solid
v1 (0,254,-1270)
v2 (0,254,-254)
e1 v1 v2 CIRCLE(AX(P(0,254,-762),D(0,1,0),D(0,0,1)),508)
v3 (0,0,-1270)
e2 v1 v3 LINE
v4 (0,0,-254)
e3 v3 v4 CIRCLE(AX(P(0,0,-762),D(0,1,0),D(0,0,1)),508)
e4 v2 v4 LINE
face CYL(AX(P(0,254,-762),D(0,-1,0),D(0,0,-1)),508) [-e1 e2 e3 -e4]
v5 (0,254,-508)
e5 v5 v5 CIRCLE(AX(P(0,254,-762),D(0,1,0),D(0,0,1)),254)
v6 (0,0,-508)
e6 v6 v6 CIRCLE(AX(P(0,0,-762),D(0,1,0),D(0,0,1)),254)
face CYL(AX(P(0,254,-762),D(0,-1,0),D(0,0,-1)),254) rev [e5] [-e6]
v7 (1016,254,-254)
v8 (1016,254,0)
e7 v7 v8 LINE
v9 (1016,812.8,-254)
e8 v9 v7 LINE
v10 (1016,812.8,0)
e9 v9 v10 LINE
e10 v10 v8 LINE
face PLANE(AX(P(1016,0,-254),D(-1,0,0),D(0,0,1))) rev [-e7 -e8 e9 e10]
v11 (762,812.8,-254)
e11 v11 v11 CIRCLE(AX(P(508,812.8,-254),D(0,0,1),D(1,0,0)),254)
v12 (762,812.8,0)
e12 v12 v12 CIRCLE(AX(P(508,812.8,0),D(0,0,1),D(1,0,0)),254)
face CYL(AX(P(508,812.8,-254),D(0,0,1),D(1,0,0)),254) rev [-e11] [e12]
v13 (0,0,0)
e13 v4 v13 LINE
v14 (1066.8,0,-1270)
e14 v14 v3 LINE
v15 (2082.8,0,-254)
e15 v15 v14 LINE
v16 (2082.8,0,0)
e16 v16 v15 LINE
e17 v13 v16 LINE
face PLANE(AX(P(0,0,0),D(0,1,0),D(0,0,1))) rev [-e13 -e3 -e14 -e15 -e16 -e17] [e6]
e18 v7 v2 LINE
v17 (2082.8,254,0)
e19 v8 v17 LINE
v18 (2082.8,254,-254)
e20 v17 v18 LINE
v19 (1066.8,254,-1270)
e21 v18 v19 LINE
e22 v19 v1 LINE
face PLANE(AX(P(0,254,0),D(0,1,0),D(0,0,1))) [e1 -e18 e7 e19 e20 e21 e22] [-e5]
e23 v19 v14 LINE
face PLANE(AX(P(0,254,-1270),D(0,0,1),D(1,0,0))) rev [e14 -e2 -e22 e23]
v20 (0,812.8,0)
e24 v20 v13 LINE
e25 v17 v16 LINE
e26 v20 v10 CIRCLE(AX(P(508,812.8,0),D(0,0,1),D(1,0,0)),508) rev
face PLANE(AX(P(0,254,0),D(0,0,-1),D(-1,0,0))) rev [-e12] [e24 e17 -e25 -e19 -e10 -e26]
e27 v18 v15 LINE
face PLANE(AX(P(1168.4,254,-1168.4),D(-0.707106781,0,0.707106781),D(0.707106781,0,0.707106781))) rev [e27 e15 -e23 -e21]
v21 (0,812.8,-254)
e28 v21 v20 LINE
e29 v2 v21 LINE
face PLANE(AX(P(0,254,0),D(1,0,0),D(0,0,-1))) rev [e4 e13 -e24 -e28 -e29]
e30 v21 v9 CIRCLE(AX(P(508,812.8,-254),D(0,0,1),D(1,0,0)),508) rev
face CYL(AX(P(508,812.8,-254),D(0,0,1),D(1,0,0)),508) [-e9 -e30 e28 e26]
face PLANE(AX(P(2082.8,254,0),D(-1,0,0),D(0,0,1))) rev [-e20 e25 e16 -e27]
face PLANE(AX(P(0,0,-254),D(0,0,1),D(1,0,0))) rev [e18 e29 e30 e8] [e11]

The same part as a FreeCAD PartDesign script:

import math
import FreeCAD as App
import Part
import Sketcher

V = App.Vector
Q = App.Units.Quantity

doc = App.newDocument("Part")
body = doc.addObject("PartDesign::Body", "Body")

# Sketch on XZ plane
sketch1 = doc.addObject("Sketcher::SketchObject", "Sketch")
body.addObject(sketch1)
sketch1.AttachmentSupport = (doc.XZ_Plane, [""])
sketch1.MapMode = "FlatFace"
sketch1.addGeometry(Part.LineSegment(V(1067, -1270, 0), V(0, -1270, 0)), False)
sketch1.addGeometry(Part.ArcOfCircle(Part.Circle(V(0, -762, 0), V(0, 0, 1), 508), math.radians(90), math.radians(270)), False)
sketch1.addGeometry(Part.LineSegment(V(0, -254, 0), V(0, 0, 0)), False)
sketch1.addGeometry(Part.LineSegment(V(0, 0, 0), V(2083, 0, 0)), False)
sketch1.addGeometry(Part.LineSegment(V(2083, 0, 0), V(2083, -254, 0)), False)
sketch1.addGeometry(Part.LineSegment(V(2083, -254, 0), V(1067, -1270, 0)), False)
sketch1.addGeometry(Part.Circle(V(0, -762, 0), V(0, 0, 1), 254), False)
sketch1.addConstraint(Sketcher.Constraint("Tangent", 0, 2, 1, 2))
sketch1.addConstraint(Sketcher.Constraint("Coincident", 1, 1, 2, 1))
sketch1.addConstraint(Sketcher.Constraint("Coincident", 2, 2, 3, 1))
sketch1.addConstraint(Sketcher.Constraint("Coincident", 3, 2, 4, 1))
sketch1.addConstraint(Sketcher.Constraint("Coincident", 4, 2, 5, 1))
sketch1.addConstraint(Sketcher.Constraint("Coincident", 5, 2, 0, 1))
sketch1.addConstraint(Sketcher.Constraint("Horizontal", 0))
sketch1.addConstraint(Sketcher.Constraint("Vertical", 2))
sketch1.addConstraint(Sketcher.Constraint("Horizontal", 3))
sketch1.addConstraint(Sketcher.Constraint("Vertical", 4))
sketch1.addConstraint(Sketcher.Constraint("Coincident", 2, 2, -1, 1))
sketch1.addConstraint(Sketcher.Constraint("Coincident", 6, 3, 1, 3))
sketch1.addConstraint(Sketcher.Constraint("PointOnObject", 1, 3, -2))
sketch1.addConstraint(Sketcher.Constraint("Horizontal", 1, 1, 4, 2))
sketch1.addConstraint(Sketcher.Constraint("Diameter", 6, Q("20 in")))
sketch1.addConstraint(Sketcher.Constraint("Radius", 1, Q("20 in")))
sketch1.addConstraint(Sketcher.Constraint("DistanceX", 0, 2, 0, 1, Q("42 in")))
sketch1.addConstraint(Sketcher.Constraint("DistanceX", 3, 1, 3, 2, Q("82 in")))
sketch1.addConstraint(Sketcher.Constraint("DistanceY", 2, 1, 2, 2, Q("10 in")))
pad1 = doc.addObject("PartDesign::Pad", "Pad")
body.addObject(pad1)
pad1.Profile = sketch1
pad1.Length = Q("10 in")
pad1.Reversed = True

# Sketch on XY plane
sketch2 = doc.addObject("Sketcher::SketchObject", "Sketch001")
body.addObject(sketch2)
sketch2.AttachmentSupport = (doc.XY_Plane, [""])
sketch2.MapMode = "FlatFace"
sketch2.addGeometry(Part.LineSegment(V(0, 813, 0), V(0, 254, 0)), False)
sketch2.addGeometry(Part.LineSegment(V(0, 254, 0), V(1016, 254, 0)), False)
sketch2.addGeometry(Part.LineSegment(V(1016, 254, 0), V(1016, 813, 0)), False)
sketch2.addGeometry(Part.ArcOfCircle(Part.Circle(V(508, 813, 0), V(0, 0, 1), 508), math.radians(0), math.radians(180)), False)
sketch2.addGeometry(Part.Circle(V(508, 813, 0), V(0, 0, 1), 254), False)
sketch2.addConstraint(Sketcher.Constraint("Coincident", 0, 2, 1, 1))
sketch2.addConstraint(Sketcher.Constraint("Coincident", 1, 2, 2, 1))
sketch2.addConstraint(Sketcher.Constraint("Tangent", 2, 2, 3, 1))
sketch2.addConstraint(Sketcher.Constraint("Tangent", 3, 2, 0, 1))
sketch2.addConstraint(Sketcher.Constraint("Vertical", 0))
sketch2.addConstraint(Sketcher.Constraint("Horizontal", 1))
sketch2.addConstraint(Sketcher.Constraint("Vertical", 2))
sketch2.addConstraint(Sketcher.Constraint("Coincident", 4, 3, 3, 3))
sketch2.addConstraint(Sketcher.Constraint("PointOnObject", 0, 2, -2))
sketch2.addConstraint(Sketcher.Constraint("Diameter", 4, Q("20 in")))
sketch2.addConstraint(Sketcher.Constraint("Radius", 3, Q("20 in")))
sketch2.addConstraint(Sketcher.Constraint("DistanceY", 0, 2, 0, 1, Q("22 in")))
sketch2.addConstraint(Sketcher.Constraint("DistanceY", -1, 1, 3, 3, Q("32 in")))
pad2 = doc.addObject("PartDesign::Pad", "Pad001")
body.addObject(pad2)
pad2.Profile = sketch2
pad2.Length = Q("10 in")
pad2.Reversed = True

doc.recompute()
